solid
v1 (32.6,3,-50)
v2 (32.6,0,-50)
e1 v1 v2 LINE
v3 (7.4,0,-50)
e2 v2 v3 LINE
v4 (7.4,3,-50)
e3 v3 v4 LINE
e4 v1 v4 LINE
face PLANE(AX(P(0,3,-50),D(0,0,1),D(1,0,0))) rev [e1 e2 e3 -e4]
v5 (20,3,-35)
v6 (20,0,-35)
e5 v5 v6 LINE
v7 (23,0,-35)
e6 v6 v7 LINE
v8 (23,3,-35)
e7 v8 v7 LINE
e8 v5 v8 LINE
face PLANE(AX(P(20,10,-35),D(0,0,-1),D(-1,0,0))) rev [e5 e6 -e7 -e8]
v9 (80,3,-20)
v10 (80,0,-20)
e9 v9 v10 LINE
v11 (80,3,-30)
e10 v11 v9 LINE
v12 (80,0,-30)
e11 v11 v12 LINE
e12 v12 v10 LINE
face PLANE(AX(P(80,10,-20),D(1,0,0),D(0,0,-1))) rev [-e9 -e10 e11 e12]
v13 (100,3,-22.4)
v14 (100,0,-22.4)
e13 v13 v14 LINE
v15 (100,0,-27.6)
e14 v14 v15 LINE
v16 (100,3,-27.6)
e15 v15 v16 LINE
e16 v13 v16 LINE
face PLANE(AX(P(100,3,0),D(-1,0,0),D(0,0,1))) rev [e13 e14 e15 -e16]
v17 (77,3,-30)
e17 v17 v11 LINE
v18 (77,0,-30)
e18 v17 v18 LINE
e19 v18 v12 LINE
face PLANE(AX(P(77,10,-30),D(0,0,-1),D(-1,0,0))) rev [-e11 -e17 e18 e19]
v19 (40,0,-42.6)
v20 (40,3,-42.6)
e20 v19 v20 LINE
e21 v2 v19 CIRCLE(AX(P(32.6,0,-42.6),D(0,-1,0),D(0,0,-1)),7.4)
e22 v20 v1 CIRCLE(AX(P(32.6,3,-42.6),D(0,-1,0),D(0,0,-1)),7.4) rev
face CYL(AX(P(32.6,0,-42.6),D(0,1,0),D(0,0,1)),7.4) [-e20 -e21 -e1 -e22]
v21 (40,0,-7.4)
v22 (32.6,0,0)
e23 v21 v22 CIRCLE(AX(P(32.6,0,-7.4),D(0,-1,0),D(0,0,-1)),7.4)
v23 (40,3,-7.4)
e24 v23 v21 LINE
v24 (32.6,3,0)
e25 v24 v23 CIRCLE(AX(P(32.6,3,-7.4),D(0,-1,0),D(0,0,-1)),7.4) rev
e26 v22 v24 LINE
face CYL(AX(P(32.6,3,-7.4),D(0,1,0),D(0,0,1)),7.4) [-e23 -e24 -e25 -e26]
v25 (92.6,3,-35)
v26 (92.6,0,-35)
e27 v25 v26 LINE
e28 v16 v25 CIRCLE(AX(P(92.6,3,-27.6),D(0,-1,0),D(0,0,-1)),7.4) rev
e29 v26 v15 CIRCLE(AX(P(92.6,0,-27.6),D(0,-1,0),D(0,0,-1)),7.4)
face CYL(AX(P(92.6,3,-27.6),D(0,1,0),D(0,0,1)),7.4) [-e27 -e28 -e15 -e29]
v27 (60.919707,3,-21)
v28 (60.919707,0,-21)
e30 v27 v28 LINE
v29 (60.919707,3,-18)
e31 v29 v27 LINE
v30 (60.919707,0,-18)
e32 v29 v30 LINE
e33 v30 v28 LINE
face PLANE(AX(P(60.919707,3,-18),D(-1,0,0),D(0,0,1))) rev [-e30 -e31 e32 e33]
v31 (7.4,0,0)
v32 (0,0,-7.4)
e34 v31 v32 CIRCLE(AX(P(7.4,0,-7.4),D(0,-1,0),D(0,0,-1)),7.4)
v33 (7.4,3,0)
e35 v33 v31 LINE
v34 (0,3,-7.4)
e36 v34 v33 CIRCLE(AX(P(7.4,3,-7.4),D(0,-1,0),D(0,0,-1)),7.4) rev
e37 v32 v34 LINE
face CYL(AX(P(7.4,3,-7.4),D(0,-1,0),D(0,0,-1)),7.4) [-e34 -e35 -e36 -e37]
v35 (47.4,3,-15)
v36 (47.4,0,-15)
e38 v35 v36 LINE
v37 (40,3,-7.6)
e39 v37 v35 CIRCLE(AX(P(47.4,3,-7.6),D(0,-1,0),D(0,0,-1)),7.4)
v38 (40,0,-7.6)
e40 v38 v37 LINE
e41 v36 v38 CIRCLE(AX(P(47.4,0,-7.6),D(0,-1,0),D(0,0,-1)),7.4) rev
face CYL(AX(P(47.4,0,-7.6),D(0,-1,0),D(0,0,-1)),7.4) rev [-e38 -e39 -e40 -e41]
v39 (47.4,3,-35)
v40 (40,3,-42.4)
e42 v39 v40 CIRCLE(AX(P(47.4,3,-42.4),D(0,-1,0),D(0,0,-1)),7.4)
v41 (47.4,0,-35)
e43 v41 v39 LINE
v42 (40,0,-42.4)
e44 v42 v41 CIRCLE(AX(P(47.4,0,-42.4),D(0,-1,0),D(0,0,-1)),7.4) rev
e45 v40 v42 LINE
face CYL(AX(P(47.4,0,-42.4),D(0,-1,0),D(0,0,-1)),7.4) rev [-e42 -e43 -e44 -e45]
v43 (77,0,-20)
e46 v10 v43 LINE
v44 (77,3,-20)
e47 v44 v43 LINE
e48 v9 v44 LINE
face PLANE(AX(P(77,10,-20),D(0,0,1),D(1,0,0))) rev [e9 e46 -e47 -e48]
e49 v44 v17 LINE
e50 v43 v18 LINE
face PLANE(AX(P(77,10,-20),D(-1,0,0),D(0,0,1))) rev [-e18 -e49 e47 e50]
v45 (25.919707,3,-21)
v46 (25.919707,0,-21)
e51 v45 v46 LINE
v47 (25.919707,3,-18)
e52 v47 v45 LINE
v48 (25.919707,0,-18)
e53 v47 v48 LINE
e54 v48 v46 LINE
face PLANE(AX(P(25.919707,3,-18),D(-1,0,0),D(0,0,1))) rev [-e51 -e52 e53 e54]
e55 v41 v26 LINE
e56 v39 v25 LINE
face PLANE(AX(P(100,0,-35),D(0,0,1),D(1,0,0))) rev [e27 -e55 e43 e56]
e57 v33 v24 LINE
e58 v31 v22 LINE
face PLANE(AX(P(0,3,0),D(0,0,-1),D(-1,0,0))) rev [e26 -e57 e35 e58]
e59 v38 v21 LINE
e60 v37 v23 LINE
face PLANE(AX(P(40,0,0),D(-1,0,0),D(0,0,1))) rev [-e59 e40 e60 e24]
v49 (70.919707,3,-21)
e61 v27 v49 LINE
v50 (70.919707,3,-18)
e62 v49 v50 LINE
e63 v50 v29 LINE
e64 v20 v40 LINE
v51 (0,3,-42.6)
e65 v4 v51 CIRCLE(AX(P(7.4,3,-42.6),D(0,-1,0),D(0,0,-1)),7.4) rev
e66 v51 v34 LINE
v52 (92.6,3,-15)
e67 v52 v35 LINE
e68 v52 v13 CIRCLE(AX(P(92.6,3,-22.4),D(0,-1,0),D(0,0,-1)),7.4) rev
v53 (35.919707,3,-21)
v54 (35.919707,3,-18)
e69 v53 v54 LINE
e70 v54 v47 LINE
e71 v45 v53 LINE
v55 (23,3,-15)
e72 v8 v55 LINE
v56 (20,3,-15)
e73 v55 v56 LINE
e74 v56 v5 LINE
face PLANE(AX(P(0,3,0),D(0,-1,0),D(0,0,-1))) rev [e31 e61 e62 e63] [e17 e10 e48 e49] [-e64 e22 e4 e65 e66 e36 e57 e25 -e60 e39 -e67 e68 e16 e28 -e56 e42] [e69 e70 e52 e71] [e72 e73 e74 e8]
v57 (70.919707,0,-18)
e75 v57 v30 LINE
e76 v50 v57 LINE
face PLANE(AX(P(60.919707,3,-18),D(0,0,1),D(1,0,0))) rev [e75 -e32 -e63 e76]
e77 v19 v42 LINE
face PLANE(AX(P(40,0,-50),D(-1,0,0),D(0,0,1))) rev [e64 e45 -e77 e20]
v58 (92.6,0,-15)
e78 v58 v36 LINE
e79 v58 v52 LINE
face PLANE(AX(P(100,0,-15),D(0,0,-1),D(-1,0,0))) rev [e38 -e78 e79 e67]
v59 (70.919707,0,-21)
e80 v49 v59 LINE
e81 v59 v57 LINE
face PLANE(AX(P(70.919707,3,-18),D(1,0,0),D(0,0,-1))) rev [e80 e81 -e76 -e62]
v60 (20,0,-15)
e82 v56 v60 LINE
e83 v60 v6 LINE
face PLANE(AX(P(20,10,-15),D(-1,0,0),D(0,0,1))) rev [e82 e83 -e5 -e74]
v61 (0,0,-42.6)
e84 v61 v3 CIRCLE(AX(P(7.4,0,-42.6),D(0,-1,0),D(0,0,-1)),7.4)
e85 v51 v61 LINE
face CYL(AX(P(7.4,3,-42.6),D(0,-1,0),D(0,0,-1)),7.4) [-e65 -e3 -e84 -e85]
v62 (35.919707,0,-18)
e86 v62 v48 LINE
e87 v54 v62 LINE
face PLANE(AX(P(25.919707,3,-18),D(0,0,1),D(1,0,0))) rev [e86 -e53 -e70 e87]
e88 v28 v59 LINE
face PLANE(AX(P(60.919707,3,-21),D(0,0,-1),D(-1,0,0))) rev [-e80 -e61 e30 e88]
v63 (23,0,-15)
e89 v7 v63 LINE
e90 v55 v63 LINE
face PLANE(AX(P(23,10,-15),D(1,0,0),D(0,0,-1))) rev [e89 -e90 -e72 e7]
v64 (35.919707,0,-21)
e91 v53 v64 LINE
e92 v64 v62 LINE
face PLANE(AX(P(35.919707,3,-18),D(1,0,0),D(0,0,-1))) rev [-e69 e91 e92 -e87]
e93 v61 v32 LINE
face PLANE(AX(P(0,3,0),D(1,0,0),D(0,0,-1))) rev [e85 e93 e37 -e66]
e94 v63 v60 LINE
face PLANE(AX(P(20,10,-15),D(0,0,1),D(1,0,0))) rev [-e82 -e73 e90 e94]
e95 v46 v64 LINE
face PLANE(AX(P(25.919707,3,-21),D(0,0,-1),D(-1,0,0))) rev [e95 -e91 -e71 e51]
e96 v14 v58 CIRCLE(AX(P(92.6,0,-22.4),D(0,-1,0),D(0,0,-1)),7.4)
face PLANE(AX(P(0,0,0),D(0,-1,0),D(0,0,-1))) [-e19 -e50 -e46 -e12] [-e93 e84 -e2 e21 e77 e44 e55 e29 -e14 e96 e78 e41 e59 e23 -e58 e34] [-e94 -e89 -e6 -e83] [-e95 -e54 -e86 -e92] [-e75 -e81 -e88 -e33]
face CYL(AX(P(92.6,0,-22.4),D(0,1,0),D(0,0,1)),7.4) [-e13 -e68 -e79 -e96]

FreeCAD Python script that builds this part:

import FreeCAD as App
import Part
import Sketcher
from FreeCAD import Vector
Q = App.Units.Quantity


def edges_at(feature, points):
    """Names of the edges that pass closest to the given points."""
    edges = feature.Shape.Edges
    near = lambda p: min(range(len(edges)), key=lambda i: edges[i].distToShape(Part.Vertex(*p))[0])
    return sorted({f"Edge{near(p) + 1}" for p in points})


def add_polygon(sketch, points):
    """Adds a closed chain of lines whose ends are joined by coincident constraints."""
    first, n = sketch.GeometryCount, len(points)
    for a, b in zip(points, points[1:] + points[:1]):
        sketch.addGeometry(Part.LineSegment(App.Vector(*a, 0), App.Vector(*b, 0)), False)
    for i in range(n):
        sketch.addConstraint(Sketcher.Constraint("Coincident", first + i, 2, first + (i + 1) % n, 1))

doc = App.newDocument("Part")
params = doc.addObject("Spreadsheet::Sheet", "Params")
for row, (alias, value) in enumerate([
    ("sketch1_width", "100 mm"),
    ("sketch1_height", "50 mm"),
    ("pad1_length", "3 mm"),
    ("sketch2_width", "60 mm"),
    ("sketch2_height", "15 mm"),
    ("pocket1_length", "3 mm"),
    ("fillet_radius", "7.4 mm"),
    ("sketch3_width", "3 mm"),
    ("sketch3_height", "20 mm"),
    ("sketch3_height2", "10 mm"),
    ("pocket2_length", "10 mm"),
    ("sketch4_width", "10 mm"),
    ("sketch4_height", "3 mm"),
    ("pocket3_length", "3 mm"),
], start=1):
    params.set(f"A{row}", alias)
    params.set(f"B{row}", "=" + value)
    params.setAlias(f"B{row}", alias)

body = doc.addObject("PartDesign::Body", "Body")

# Sketch on XZ plane
sketch1 = body.newObject("Sketcher::SketchObject", "Sketch")
sketch1.AttachmentSupport = (doc.getObject("XZ_Plane"), [""])
sketch1.MapMode = "FlatFace"
add_polygon(sketch1, [(0, -50), (0, 0), (100, 0), (100, -50)])  # lines 0-3
sketch1.addConstraint(Sketcher.Constraint("Vertical", 0))
sketch1.addConstraint(Sketcher.Constraint("Horizontal", 1))
sketch1.addConstraint(Sketcher.Constraint("Vertical", 2))
sketch1.addConstraint(Sketcher.Constraint("Horizontal", 3))
sketch1.addConstraint(Sketcher.Constraint("Coincident", 0, 2, -1, 1))
sketch1.addConstraint(Sketcher.Constraint("DistanceX", 1, 1, 1, 2, Q("100 mm")))
sketch1.addConstraint(Sketcher.Constraint("DistanceY", 0, 1, 0, 2, Q("50 mm")))
sketch1.setExpression("Constraints[9]", "Params.sketch1_width")
sketch1.setExpression("Constraints[10]", "Params.sketch1_height")
pad1 = body.newObject("PartDesign::Pad", "Pad")
pad1.Profile = sketch1
pad1.setExpression("Length", "Params.pad1_length")
pad1.Reversed = True

# Sketch on XZ plane
sketch2 = body.newObject("Sketcher::SketchObject", "Sketch001")
sketch2.AttachmentSupport = (doc.getObject("XZ_Plane"), [""])
sketch2.MapMode = "FlatFace"
sketch2.AttachmentOffset = App.Placement(Vector(0, 0, -3), App.Rotation())
add_polygon(sketch2, [(40, -15), (40, 0), (100, 0), (100, -15)])  # lines 0-3
add_polygon(sketch2, [(40, -50), (40, -35), (100, -35), (100, -50)])  # lines 4-7
sketch2.addConstraint(Sketcher.Constraint("Vertical", 0))
sketch2.addConstraint(Sketcher.Constraint("Horizontal", 1))
sketch2.addConstraint(Sketcher.Constraint("Vertical", 2))
sketch2.addConstraint(Sketcher.Constraint("Horizontal", 3))
sketch2.addConstraint(Sketcher.Constraint("Vertical", 4))
sketch2.addConstraint(Sketcher.Constraint("Horizontal", 5))
sketch2.addConstraint(Sketcher.Constraint("Vertical", 6))
sketch2.addConstraint(Sketcher.Constraint("Horizontal", 7))
sketch2.addConstraint(Sketcher.Constraint("PointOnObject", 0, 2, -1))
sketch2.addConstraint(Sketcher.Constraint("Vertical", 3, 2, 4, 2))
sketch2.addConstraint(Sketcher.Constraint("Vertical", 2, 2, 5, 2))
sketch2.addConstraint(Sketcher.Constraint("Equal", 2, 4))
sketch2.addConstraint(Sketcher.Constraint("DistanceX", 1, 1, 1, 2, Q("60 mm")))
sketch2.addConstraint(Sketcher.Constraint("DistanceY", 0, 1, 0, 2, Q("15 mm")))
sketch2.addConstraint(Sketcher.Constraint("DistanceX", -1, 1, 0, 2, Q("40 mm")))
sketch2.addConstraint(Sketcher.Constraint("DistanceY", 4, 2, -1, 1, Q("35 mm")))
sketch2.setExpression("Constraints[20]", "Params.sketch2_width")
sketch2.setExpression("Constraints[21]", "Params.sketch2_height")
pocket1 = body.newObject("PartDesign::Pocket", "Pocket")
pocket1.Profile = sketch2
pocket1.setExpression("Length", "Params.pocket1_length")
pocket1.Reversed = True
doc.recompute()

fillet = body.newObject("PartDesign::Fillet", "Fillet")
fillet.Base = (pocket1, edges_at(pocket1, [
    (100, 1.5, -15),
    (40, 1.5, 0),
    (40, 1.5, -15),
    (100, 1.5, -35),
    (40, 1.5, -35),
    (40, 1.5, -50),
    (0, 1.5, -50),
    (0, 1.5, 0),
]))
fillet.setExpression("Radius", "Params.fillet_radius")

# Sketch on XZ plane
sketch3 = body.newObject("Sketcher::SketchObject", "Sketch002")
sketch3.AttachmentSupport = (doc.getObject("XZ_Plane"), [""])
sketch3.MapMode = "FlatFace"
add_polygon(sketch3, [(20, -15), (20, -35), (23, -35), (23, -15)])  # lines 0-3
add_polygon(sketch3, [(77, -20), (77, -30), (80, -30), (80, -20)])  # lines 4-7
sketch3.addConstraint(Sketcher.Constraint("Vertical", 0))
sketch3.addConstraint(Sketcher.Constraint("Horizontal", 1))
sketch3.addConstraint(Sketcher.Constraint("Vertical", 2))
sketch3.addConstraint(Sketcher.Constraint("Horizontal", 3))
sketch3.addConstraint(Sketcher.Constraint("Vertical", 4))
sketch3.addConstraint(Sketcher.Constraint("Horizontal", 5))
sketch3.addConstraint(Sketcher.Constraint("Vertical", 6))
sketch3.addConstraint(Sketcher.Constraint("Horizontal", 7))
sketch3.addConstraint(Sketcher.Constraint("Equal", 3, 5))
sketch3.addConstraint(Sketcher.Constraint("DistanceX", 1, 1, 1, 2, Q("3 mm")))
sketch3.addConstraint(Sketcher.Constraint("DistanceY", 0, 2, 0, 1, Q("20 mm")))
sketch3.addConstraint(Sketcher.Constraint("DistanceY", 4, 2, 4, 1, Q("10 mm")))
sketch3.addConstraint(Sketcher.Constraint("DistanceX", -1, 1, 0, 2, Q("20 mm")))
sketch3.addConstraint(Sketcher.Constraint("DistanceY", 0, 2, -1, 1, Q("35 mm")))
sketch3.addConstraint(Sketcher.Constraint("DistanceX", -1, 1, 4, 2, Q("77 mm")))
sketch3.addConstraint(Sketcher.Constraint("DistanceY", 4, 2, -1, 1, Q("30 mm")))
sketch3.setExpression("Constraints[17]", "Params.sketch3_width")
sketch3.setExpression("Constraints[18]", "Params.sketch3_height")
sketch3.setExpression("Constraints[19]", "Params.sketch3_height2")
pocket2 = body.newObject("PartDesign::Pocket", "Pocket001")
pocket2.Profile = sketch3
pocket2.setExpression("Length", "Params.pocket2_length")

# Sketch on XZ plane
sketch4 = body.newObject("Sketcher::SketchObject", "Sketch003")
sketch4.AttachmentSupport = (doc.getObject("XZ_Plane"), [""])
sketch4.MapMode = "FlatFace"
add_polygon(sketch4, [(25.9, -18), (25.9, -21), (35.9, -21), (35.9, -18)])  # lines 0-3
add_polygon(sketch4, [(60.9, -18), (60.9, -21), (70.9, -21), (70.9, -18)])  # lines 4-7
sketch4.addConstraint(Sketcher.Constraint("Vertical", 0))
sketch4.addConstraint(Sketcher.Constraint("Horizontal", 1))
sketch4.addConstraint(Sketcher.Constraint("Vertical", 2))
sketch4.addConstraint(Sketcher.Constraint("Horizontal", 3))
sketch4.addConstraint(Sketcher.Constraint("Vertical", 4))
sketch4.addConstraint(Sketcher.Constraint("Horizontal", 5))
sketch4.addConstraint(Sketcher.Constraint("Vertical", 6))
sketch4.addConstraint(Sketcher.Constraint("Horizontal", 7))
sketch4.addConstraint(Sketcher.Constraint("Horizontal", 1, 2, 4, 2))
sketch4.addConstraint(Sketcher.Constraint("Horizontal", 3, 2, 6, 2))
sketch4.addConstraint(Sketcher.Constraint("Equal", 3, 5))
sketch4.addConstraint(Sketcher.Constraint("DistanceX", 1, 1, 1, 2, Q("10 mm")))
sketch4.addConstraint(Sketcher.Constraint("DistanceY", 0, 2, 0, 1, Q("3 mm")))
sketch4.addConstraint(Sketcher.Constraint("DistanceY", 0, 2, -1, 1, Q("21 mm")))
sketch4.addConstraint(Sketcher.Constraint("DistanceX", 1, 2, 4, 2, Q("25 mm")))
sketch4.addConstraint(Sketcher.Constraint("DistanceX", -1, 1, 0, 2, Q("25.919707 mm")))
sketch4.setExpression("Constraints[19]", "Params.sketch4_width")
sketch4.setExpression("Constraints[20]", "Params.sketch4_height")
pocket3 = body.newObject("PartDesign::Pocket", "Pocket002")
pocket3.Profile = sketch4
pocket3.setExpression("Length", "Params.pocket3_length")

doc.recompute()
